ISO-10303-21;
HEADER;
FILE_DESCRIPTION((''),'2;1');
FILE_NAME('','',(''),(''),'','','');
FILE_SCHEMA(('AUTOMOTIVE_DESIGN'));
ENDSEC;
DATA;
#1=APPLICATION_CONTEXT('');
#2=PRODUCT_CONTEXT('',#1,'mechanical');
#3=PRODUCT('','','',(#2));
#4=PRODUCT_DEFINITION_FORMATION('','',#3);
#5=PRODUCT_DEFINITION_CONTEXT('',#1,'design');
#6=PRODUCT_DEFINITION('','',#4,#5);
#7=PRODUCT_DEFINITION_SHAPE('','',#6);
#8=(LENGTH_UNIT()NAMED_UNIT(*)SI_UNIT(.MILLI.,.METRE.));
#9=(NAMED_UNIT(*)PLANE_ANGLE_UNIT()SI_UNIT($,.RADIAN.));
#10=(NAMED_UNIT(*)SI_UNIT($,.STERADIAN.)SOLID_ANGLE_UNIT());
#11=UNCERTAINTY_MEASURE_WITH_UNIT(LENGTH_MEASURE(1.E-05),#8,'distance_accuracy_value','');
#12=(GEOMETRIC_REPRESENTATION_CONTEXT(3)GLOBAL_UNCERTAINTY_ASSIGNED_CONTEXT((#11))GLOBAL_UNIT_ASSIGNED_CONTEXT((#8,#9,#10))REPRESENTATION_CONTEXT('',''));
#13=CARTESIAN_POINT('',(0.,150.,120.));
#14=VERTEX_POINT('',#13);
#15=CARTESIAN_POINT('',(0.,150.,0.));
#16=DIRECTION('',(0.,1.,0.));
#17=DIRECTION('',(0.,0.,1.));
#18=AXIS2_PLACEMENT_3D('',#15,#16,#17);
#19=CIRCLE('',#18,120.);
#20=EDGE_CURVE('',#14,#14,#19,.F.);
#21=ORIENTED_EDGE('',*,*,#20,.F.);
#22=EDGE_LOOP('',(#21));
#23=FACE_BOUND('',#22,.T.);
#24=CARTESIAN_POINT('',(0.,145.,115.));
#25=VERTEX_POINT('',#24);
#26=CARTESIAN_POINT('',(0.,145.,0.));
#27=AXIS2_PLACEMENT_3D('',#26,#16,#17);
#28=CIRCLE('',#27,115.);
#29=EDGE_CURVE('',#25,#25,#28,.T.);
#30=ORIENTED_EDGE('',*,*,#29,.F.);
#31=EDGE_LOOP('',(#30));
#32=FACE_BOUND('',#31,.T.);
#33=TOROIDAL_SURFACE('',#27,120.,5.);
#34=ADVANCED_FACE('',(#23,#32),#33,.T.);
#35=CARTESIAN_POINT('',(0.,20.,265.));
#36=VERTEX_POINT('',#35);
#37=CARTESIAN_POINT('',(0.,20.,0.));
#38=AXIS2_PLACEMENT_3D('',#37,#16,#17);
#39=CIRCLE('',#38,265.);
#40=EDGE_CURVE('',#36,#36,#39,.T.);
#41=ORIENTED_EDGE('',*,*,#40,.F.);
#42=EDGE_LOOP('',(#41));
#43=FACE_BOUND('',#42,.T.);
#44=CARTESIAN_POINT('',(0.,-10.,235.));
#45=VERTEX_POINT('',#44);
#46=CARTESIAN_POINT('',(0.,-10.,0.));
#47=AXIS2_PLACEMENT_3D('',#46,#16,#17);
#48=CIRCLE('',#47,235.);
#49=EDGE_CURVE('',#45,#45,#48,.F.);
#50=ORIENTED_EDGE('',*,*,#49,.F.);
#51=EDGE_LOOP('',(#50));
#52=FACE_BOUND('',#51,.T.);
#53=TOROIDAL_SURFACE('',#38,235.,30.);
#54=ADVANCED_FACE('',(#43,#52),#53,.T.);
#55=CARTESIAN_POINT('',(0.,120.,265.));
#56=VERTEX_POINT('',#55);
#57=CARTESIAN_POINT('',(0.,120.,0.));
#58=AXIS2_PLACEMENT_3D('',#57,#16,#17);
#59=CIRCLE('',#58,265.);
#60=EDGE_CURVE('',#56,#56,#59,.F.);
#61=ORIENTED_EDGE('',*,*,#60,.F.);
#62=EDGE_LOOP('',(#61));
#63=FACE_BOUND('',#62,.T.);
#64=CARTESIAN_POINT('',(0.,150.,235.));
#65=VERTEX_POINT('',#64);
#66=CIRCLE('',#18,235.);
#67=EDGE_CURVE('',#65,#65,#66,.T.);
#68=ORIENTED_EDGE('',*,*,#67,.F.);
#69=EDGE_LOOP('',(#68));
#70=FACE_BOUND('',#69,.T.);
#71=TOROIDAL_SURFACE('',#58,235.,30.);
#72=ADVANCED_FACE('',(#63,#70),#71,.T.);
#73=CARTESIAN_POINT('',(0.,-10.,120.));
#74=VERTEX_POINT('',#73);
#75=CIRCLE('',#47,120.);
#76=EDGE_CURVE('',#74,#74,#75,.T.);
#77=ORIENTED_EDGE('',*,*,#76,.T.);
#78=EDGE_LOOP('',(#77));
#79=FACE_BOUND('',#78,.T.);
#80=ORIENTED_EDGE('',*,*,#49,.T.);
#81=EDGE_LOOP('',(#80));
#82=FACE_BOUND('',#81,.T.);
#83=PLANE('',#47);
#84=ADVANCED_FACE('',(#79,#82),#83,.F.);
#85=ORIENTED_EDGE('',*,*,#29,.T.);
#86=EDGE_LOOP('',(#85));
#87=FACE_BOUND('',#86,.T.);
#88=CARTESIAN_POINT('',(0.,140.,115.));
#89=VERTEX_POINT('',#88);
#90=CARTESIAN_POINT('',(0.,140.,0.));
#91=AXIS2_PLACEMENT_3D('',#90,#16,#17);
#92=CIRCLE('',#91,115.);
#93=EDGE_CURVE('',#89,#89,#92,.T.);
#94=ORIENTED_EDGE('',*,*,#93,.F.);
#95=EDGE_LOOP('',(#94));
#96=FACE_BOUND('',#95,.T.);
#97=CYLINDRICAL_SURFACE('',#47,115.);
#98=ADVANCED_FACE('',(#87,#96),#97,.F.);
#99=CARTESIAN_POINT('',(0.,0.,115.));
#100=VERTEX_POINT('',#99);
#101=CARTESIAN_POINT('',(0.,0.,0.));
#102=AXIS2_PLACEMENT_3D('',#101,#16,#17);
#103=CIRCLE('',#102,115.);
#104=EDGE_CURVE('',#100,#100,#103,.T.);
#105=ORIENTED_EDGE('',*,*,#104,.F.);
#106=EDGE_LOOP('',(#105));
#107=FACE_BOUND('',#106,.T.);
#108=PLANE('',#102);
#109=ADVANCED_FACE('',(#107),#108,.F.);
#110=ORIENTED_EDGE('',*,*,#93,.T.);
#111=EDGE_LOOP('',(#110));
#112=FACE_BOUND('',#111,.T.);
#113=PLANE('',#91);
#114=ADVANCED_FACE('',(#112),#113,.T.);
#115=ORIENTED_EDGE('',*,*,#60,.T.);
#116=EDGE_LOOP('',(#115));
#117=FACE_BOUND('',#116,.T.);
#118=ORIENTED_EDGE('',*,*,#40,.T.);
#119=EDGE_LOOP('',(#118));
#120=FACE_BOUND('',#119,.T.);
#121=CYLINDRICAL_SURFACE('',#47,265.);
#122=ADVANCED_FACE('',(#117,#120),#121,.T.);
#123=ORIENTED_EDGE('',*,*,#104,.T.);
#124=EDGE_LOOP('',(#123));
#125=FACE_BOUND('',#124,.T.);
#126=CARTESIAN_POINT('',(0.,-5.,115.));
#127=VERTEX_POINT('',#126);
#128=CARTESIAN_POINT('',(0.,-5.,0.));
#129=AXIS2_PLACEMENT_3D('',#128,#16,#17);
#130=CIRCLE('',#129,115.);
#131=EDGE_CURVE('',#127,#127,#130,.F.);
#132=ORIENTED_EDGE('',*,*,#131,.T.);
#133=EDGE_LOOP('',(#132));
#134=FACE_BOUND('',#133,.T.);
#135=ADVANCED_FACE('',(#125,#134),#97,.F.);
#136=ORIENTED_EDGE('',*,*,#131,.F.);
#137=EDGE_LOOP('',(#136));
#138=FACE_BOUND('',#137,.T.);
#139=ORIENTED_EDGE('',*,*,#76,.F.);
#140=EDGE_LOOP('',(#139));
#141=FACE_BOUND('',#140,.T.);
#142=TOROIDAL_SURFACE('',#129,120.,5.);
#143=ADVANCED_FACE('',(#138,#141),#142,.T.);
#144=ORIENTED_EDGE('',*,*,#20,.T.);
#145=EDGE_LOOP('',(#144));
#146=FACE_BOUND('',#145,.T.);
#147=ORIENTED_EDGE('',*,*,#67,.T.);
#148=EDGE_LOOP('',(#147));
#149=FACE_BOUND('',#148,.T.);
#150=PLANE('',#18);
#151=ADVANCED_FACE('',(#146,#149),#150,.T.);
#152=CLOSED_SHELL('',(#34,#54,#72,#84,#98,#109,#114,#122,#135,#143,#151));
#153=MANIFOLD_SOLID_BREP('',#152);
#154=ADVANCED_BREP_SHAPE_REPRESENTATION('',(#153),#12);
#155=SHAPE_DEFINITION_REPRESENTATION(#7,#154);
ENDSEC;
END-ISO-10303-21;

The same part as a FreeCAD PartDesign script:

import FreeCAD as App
import Part
import Sketcher


def edges_at(feature, points):
    """Names of the edges that pass closest to the given points."""
    edges = feature.Shape.Edges
    near = lambda p: min(range(len(edges)), key=lambda i: edges[i].distToShape(Part.Vertex(*p))[0])
    return sorted({f"Edge{near(p) + 1}" for p in points})

doc = App.newDocument("Part")
body = doc.addObject("PartDesign::Body", "Body")

# Sketch on XZ plane
sketch1 = doc.addObject("Sketcher::SketchObject", "Sketch")
body.addObject(sketch1)
sketch1.AttachmentSupport = (doc.XZ_Plane, [""])
sketch1.MapMode = "FlatFace"
sketch1.addGeometry(Part.Circle(App.Vector(0, 0, 0), App.Vector(0, 0, 1), 115), False)
sketch1.addConstraint(Sketcher.Constraint("Coincident", 0, 3, -1, 1))
sketch1.addConstraint(Sketcher.Constraint("Diameter", 0, 230.0))
pad1 = doc.addObject("PartDesign::Pad", "Pad")
body.addObject(pad1)
pad1.Profile = sketch1
pad1.Length = 140
pad1.Reversed = True

# Sketch on XZ plane
sketch2 = doc.addObject("Sketcher::SketchObject", "Sketch001")
body.addObject(sketch2)
sketch2.AttachmentSupport = (doc.XZ_Plane, [""])
sketch2.MapMode = "FlatFace"
sketch2.AttachmentOffset = App.Placement(App.Vector(0, 0, -70), App.Rotation())
sketch2.addGeometry(Part.Circle(App.Vector(0, 0, 0), App.Vector(0, 0, 1), 265), False)
sketch2.addGeometry(Part.Circle(App.Vector(0, 0, 0), App.Vector(0, 0, 1), 115), False)
sketch2.addConstraint(Sketcher.Constraint("Coincident", 0, 3, -1, 1))
sketch2.addConstraint(Sketcher.Constraint("Coincident", 1, 3, -1, 1))
sketch2.addConstraint(Sketcher.Constraint("Diameter", 0, 530.0))
sketch2.addConstraint(Sketcher.Constraint("Diameter", 1, 230.0))
pad2 = doc.addObject("PartDesign::Pad", "Pad001")
body.addObject(pad2)
pad2.Profile = sketch2
pad2.Type = "TwoLengths"
pad2.Length = 80
pad2.Length2 = 80
pad2.Reversed = True
doc.recompute()

fillet = doc.addObject("PartDesign::Fillet", "Fillet")
body.addObject(fillet)
fillet.Base = (pad2, edges_at(pad2, [(0, -10, -265), (0, 150, -265)]))
fillet.Radius = 30
doc.recompute()

fillet2 = doc.addObject("PartDesign::Fillet", "Fillet001")
body.addObject(fillet2)
fillet2.Base = (fillet, edges_at(fillet, [(0, -10, -115)]))
fillet2.Radius = 5
doc.recompute()

fillet3 = doc.addObject("PartDesign::Fillet", "Fillet002")
body.addObject(fillet3)
fillet3.Base = (fillet2, edges_at(fillet2, [(0, 150, -115)]))
fillet3.Radius = 5

doc.recompute()
